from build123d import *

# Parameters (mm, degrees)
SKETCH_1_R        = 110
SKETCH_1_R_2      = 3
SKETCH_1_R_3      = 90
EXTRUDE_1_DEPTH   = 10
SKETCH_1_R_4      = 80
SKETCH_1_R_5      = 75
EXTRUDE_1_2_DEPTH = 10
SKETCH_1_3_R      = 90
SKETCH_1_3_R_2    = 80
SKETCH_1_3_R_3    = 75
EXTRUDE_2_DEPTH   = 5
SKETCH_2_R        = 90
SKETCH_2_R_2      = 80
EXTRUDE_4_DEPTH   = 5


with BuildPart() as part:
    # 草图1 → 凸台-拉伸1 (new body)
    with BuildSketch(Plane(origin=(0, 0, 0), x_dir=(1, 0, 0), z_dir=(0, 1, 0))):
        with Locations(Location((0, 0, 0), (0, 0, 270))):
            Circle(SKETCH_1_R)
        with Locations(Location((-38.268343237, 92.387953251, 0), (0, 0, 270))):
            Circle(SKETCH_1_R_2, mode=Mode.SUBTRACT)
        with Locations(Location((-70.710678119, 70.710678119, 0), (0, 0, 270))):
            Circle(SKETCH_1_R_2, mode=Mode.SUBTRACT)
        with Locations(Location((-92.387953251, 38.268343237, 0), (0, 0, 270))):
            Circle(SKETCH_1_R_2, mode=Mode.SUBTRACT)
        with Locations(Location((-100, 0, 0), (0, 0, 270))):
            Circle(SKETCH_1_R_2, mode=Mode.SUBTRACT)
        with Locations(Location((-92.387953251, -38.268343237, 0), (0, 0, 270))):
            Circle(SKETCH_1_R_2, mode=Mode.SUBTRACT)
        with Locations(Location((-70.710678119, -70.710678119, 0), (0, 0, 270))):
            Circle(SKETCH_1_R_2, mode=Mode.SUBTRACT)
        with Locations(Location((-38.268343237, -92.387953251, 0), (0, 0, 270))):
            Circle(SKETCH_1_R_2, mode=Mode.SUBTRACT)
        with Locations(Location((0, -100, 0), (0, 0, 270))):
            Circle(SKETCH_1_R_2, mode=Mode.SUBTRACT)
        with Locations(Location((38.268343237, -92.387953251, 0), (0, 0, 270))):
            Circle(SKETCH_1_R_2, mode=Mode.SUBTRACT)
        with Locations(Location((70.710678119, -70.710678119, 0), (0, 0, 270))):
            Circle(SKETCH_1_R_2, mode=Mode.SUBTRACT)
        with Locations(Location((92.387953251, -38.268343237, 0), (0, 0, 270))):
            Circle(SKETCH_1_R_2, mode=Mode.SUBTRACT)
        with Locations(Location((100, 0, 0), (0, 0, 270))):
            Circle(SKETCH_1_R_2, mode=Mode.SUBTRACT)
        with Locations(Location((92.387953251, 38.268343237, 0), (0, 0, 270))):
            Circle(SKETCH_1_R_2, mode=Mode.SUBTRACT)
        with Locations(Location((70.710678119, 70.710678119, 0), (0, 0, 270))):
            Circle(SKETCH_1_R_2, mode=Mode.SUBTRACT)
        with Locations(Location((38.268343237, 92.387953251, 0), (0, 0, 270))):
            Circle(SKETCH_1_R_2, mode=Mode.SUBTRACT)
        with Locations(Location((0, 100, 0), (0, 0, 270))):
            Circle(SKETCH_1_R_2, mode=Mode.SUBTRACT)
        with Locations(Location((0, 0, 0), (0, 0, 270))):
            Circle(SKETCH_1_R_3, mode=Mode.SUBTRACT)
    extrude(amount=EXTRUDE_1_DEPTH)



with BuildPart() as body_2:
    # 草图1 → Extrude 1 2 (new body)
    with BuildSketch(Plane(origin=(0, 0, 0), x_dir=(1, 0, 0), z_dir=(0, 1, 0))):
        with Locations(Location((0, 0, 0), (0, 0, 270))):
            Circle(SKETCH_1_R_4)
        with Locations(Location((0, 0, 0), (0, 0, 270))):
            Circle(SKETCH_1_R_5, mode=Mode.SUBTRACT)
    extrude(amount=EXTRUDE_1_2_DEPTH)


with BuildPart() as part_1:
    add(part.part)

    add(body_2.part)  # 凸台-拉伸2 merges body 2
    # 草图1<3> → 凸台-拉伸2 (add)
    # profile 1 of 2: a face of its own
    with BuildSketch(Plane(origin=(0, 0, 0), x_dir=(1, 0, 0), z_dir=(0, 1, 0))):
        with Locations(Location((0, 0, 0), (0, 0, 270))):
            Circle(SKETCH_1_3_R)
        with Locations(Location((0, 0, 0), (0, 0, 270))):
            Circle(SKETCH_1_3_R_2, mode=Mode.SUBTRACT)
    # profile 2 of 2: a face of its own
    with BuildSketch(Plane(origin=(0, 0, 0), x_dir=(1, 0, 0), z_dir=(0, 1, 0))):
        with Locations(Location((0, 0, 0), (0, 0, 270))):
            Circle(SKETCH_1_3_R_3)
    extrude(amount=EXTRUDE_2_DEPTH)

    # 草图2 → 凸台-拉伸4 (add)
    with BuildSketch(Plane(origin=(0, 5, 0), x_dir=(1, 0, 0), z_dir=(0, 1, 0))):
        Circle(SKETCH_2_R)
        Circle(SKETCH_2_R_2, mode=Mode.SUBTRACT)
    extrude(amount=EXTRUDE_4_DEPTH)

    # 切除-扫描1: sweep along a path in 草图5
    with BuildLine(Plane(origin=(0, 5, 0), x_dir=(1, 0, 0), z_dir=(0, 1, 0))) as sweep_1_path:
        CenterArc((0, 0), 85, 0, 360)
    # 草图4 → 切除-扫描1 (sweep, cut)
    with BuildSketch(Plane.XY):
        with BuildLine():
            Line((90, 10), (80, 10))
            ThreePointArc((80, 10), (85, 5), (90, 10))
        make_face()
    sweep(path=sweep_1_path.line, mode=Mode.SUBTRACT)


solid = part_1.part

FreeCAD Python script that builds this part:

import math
import FreeCAD as App
import Part
import Sketcher
from FreeCAD import Vector

doc = App.newDocument("Part")
body = doc.addObject("PartDesign::Body", "Body")

# Sketch on XZ plane
sketch1 = body.newObject("Sketcher::SketchObject", "Sketch")
sketch1.AttachmentSupport = (doc.getObject("XZ_Plane"), [""])
sketch1.MapMode = "FlatFace"
sketch1.addGeometry(Part.Circle(Vector(0, 0, 0), Vector(0, 0, 1), 110), False)
sketch1.addGeometry(Part.Circle(Vector(-70.7, -70.7, 0), Vector(0, 0, 1), 3), False)
sketch1.addGeometry(Part.Circle(Vector(-92.4, -38.3, 0), Vector(0, 0, 1), 3), False)
sketch1.addGeometry(Part.Circle(Vector(-38.3, -92.4, 0), Vector(0, 0, 1), 3), False)
sketch1.addGeometry(Part.Circle(Vector(0, -100, 0), Vector(0, 0, 1), 3), False)
sketch1.addGeometry(Part.Circle(Vector(0, 0, 0), Vector(0, 0, 1), 90), False)
sketch1.addGeometry(Part.Circle(Vector(-100, 0, 0), Vector(0, 0, 1), 3), False)
sketch1.addGeometry(Part.Circle(Vector(-92.4, 38.3, 0), Vector(0, 0, 1), 3), False)
sketch1.addGeometry(Part.Circle(Vector(-70.7, 70.7, 0), Vector(0, 0, 1), 3), False)
sketch1.addGeometry(Part.Circle(Vector(-38.3, 92.4, 0), Vector(0, 0, 1), 3), False)
sketch1.addGeometry(Part.Circle(Vector(38.3, -92.4, 0), Vector(0, 0, 1), 3), False)
sketch1.addGeometry(Part.Circle(Vector(70.7, -70.7, 0), Vector(0, 0, 1), 3), False)
sketch1.addGeometry(Part.Circle(Vector(92.4, -38.3, 0), Vector(0, 0, 1), 3), False)
sketch1.addGeometry(Part.Circle(Vector(100, 0, 0), Vector(0, 0, 1), 3), False)
sketch1.addGeometry(Part.Circle(Vector(0, 100, 0), Vector(0, 0, 1), 3), False)
sketch1.addGeometry(Part.Circle(Vector(38.3, 92.4, 0), Vector(0, 0, 1), 3), False)
sketch1.addGeometry(Part.Circle(Vector(92.4, 38.3, 0), Vector(0, 0, 1), 3), False)
sketch1.addGeometry(Part.Circle(Vector(70.7, 70.7, 0), Vector(0, 0, 1), 3), False)
sketch1.addConstraint(Sketcher.Constraint("Coincident", 0, 3, -1, 1))
sketch1.addConstraint(Sketcher.Constraint("Coincident", 5, 3, -1, 1))
sketch1.addConstraint(Sketcher.Constraint("Equal", 1, 2))
sketch1.addConstraint(Sketcher.Constraint("Equal", 2, 3))
sketch1.addConstraint(Sketcher.Constraint("Equal", 3, 4))
sketch1.addConstraint(Sketcher.Constraint("Equal", 4, 6))
sketch1.addConstraint(Sketcher.Constraint("Equal", 6, 7))
sketch1.addConstraint(Sketcher.Constraint("Equal", 7, 8))
sketch1.addConstraint(Sketcher.Constraint("Equal", 8, 9))
sketch1.addConstraint(Sketcher.Constraint("Equal", 9, 10))
sketch1.addConstraint(Sketcher.Constraint("Equal", 10, 11))
sketch1.addConstraint(Sketcher.Constraint("Equal", 11, 12))
sketch1.addConstraint(Sketcher.Constraint("Equal", 12, 13))
sketch1.addConstraint(Sketcher.Constraint("Equal", 13, 14))
sketch1.addConstraint(Sketcher.Constraint("Equal", 14, 15))
sketch1.addConstraint(Sketcher.Constraint("Equal", 15, 16))
sketch1.addConstraint(Sketcher.Constraint("Equal", 16, 17))
sketch1.addConstraint(Sketcher.Constraint("Symmetric", 9, 3, 10, 3, -1, 1))
sketch1.addConstraint(Sketcher.Constraint("Symmetric", 8, 3, 11, 3, -1, 1))
sketch1.addConstraint(Sketcher.Constraint("Symmetric", 7, 3, 12, 3, -1, 1))
sketch1.addConstraint(Sketcher.Constraint("Symmetric", 6, 3, 13, 3, -1, 1))
sketch1.addConstraint(Sketcher.Constraint("Symmetric", 4, 3, 14, 3, -1, 1))
sketch1.addConstraint(Sketcher.Constraint("Symmetric", 3, 3, 15, 3, -1, 1))
sketch1.addConstraint(Sketcher.Constraint("Symmetric", 2, 3, 16, 3, -1, 1))
sketch1.addConstraint(Sketcher.Constraint("Symmetric", 1, 3, 17, 3, -1, 1))
sketch1.addConstraint(Sketcher.Constraint("Symmetric", 3, 3, 10, 3, -2))
sketch1.addConstraint(Sketcher.Constraint("Symmetric", 1, 3, 11, 3, -2))
sketch1.addConstraint(Sketcher.Constraint("Symmetric", 2, 3, 12, 3, -2))
sketch1.addConstraint(Sketcher.Constraint("PointOnObject", 4, 3, -2))
sketch1.addConstraint(Sketcher.Constraint("PointOnObject", 6, 3, -1))
sketch1.addConstraint(Sketcher.Constraint("Diameter", 0, 220.0))
sketch1.addConstraint(Sketcher.Constraint("Diameter", 1, 6.0))
sketch1.addConstraint(Sketcher.Constraint("Diameter", 5, 180.0))
sketch1.addConstraint(Sketcher.Constraint("DistanceY", 4, 3, -1, 1, 100.0))
sketch1.addConstraint(Sketcher.Constraint("DistanceX", 6, 3, -1, 1, 100.0))
sketch1.addConstraint(Sketcher.Constraint("DistanceX", 1, 3, -1, 1, 70.710678))
sketch1.addConstraint(Sketcher.Constraint("DistanceY", 1, 3, -1, 1, 70.710678))
sketch1.addConstraint(Sketcher.Constraint("DistanceX", 2, 3, 3, 3, 54.11961))
sketch1.addConstraint(Sketcher.Constraint("DistanceY", 3, 3, 2, 3, 54.11961))
sketch1.addConstraint(Sketcher.Constraint("DistanceY", 1, 3, 7, 3, 108.979021))
sketch1.addConstraint(Sketcher.Constraint("DistanceX", 1, 3, 10, 3, 108.979021))
pad1 = body.newObject("PartDesign::Pad", "Pad")
pad1.Profile = sketch1
pad1.Length = 10
pad1.Reversed = True
body2 = doc.addObject("PartDesign::Body", "Body001")

# Sketch on XZ plane
sketch2 = body2.newObject("Sketcher::SketchObject", "Sketch001")
sketch2.AttachmentSupport = (doc.getObject("XZ_Plane001"), [""])
sketch2.MapMode = "FlatFace"
sketch2.addGeometry(Part.Circle(Vector(0, 0, 0), Vector(0, 0, 1), 80), False)
sketch2.addGeometry(Part.Circle(Vector(0, 0, 0), Vector(0, 0, 1), 75), False)
sketch2.addConstraint(Sketcher.Constraint("Coincident", 0, 3, -1, 1))
sketch2.addConstraint(Sketcher.Constraint("Coincident", 1, 3, -1, 1))
sketch2.addConstraint(Sketcher.Constraint("Diameter", 0, 160.0))
sketch2.addConstraint(Sketcher.Constraint("Diameter", 1, 150.0))
pad2 = body2.newObject("PartDesign::Pad", "Pad001")
pad2.Profile = sketch2
pad2.Length = 10
pad2.Reversed = True
body.AllowCompound = True
doc.recompute()

boolean = body.newObject("PartDesign::Boolean", "Boolean")
boolean.Type = "Fuse"
boolean.addObjects([body2])

# Sketch on XZ plane
sketch3 = body.newObject("Sketcher::SketchObject", "Sketch002")
sketch3.AttachmentSupport = (doc.getObject("XZ_Plane"), [""])
sketch3.MapMode = "FlatFace"
sketch3.addGeometry(Part.Circle(Vector(0, 0, 0), Vector(0, 0, 1), 90), False)
sketch3.addGeometry(Part.Circle(Vector(0, 0, 0), Vector(0, 0, 1), 80), False)
sketch3.addGeometry(Part.Circle(Vector(0, 0, 0), Vector(0, 0, 1), 75), False)
sketch3.addConstraint(Sketcher.Constraint("Coincident", 0, 3, -1, 1))
sketch3.addConstraint(Sketcher.Constraint("Coincident", 1, 3, -1, 1))
sketch3.addConstraint(Sketcher.Constraint("Coincident", 2, 3, -1, 1))
sketch3.addConstraint(Sketcher.Constraint("Diameter", 0, 180.0))
sketch3.addConstraint(Sketcher.Constraint("Diameter", 1, 160.0))
sketch3.addConstraint(Sketcher.Constraint("Diameter", 2, 150.0))
pad3 = body.newObject("PartDesign::Pad", "Pad002")
pad3.Profile = sketch3
pad3.Length = 5
pad3.Reversed = True

# Sketch on XZ plane
sketch4 = body.newObject("Sketcher::SketchObject", "Sketch003")
sketch4.AttachmentSupport = (doc.getObject("XZ_Plane"), [""])
sketch4.MapMode = "FlatFace"
sketch4.AttachmentOffset = App.Placement(Vector(0, 0, -5), App.Rotation())
sketch4.addGeometry(Part.Circle(Vector(0, 0, 0), Vector(0, 0, 1), 90), False)
sketch4.addGeometry(Part.Circle(Vector(0, 0, 0), Vector(0, 0, 1), 80), False)
sketch4.addConstraint(Sketcher.Constraint("Coincident", 0, 3, -1, 1))
sketch4.addConstraint(Sketcher.Constraint("Coincident", 1, 3, -1, 1))
sketch4.addConstraint(Sketcher.Constraint("Diameter", 0, 180.0))
sketch4.addConstraint(Sketcher.Constraint("Diameter", 1, 160.0))
pad4 = body.newObject("PartDesign::Pad", "Pad003")
pad4.Profile = sketch4
pad4.Length = 5
pad4.Reversed = True

# Sketch on XY plane
sketch5 = body.newObject("Sketcher::SketchObject", "Sketch004")
sketch5.AttachmentSupport = (doc.getObject("XY_Plane"), [""])
sketch5.MapMode = "FlatFace"
sketch5.addGeometry(Part.LineSegment(Vector(90, 10, 0), Vector(80, 10, 0)), False)
sketch5.addGeometry(Part.ArcOfCircle(Part.Circle(Vector(85, 10, 0), Vector(0, 0, 1), 5), math.radians(180), math.radians(360)), False)
sketch5.addConstraint(Sketcher.Constraint("Coincident", 0, 1, 1, 2))
sketch5.addConstraint(Sketcher.Constraint("Coincident", 1, 1, 0, 2))
sketch5.addConstraint(Sketcher.Constraint("Horizontal", 0))
sketch5.addConstraint(Sketcher.Constraint("Horizontal", 1, 3, 0, 1))
sketch5.addConstraint(Sketcher.Constraint("Radius", 1, 5.0))
sketch5.addConstraint(Sketcher.Constraint("DistanceX", -1, 1, 1, 3, 85.0))
sketch5.addConstraint(Sketcher.Constraint("DistanceY", -1, 1, 1, 3, 10.0))

# Sketch on XZ plane
sketch6 = body.newObject("Sketcher::SketchObject", "Sketch005")
sketch6.AttachmentSupport = (doc.getObject("XZ_Plane"), [""])
sketch6.MapMode = "FlatFace"
sketch6.AttachmentOffset = App.Placement(Vector(0, 0, -5), App.Rotation())
sketch6.addGeometry(Part.Circle(Vector(0, 0, 0), Vector(0, 0, 1), 85), False)
sketch6.addConstraint(Sketcher.Constraint("Coincident", 0, 3, -1, 1))
sketch6.addConstraint(Sketcher.Constraint("Diameter", 0, 170.0))
doc.recompute()

subtractivepipe = body.newObject("PartDesign::SubtractivePipe", "SubtractivePipe")
subtractivepipe.Profile = sketch5
subtractivepipe.Spine = (sketch6, ["Edge1"])

doc.recompute()
